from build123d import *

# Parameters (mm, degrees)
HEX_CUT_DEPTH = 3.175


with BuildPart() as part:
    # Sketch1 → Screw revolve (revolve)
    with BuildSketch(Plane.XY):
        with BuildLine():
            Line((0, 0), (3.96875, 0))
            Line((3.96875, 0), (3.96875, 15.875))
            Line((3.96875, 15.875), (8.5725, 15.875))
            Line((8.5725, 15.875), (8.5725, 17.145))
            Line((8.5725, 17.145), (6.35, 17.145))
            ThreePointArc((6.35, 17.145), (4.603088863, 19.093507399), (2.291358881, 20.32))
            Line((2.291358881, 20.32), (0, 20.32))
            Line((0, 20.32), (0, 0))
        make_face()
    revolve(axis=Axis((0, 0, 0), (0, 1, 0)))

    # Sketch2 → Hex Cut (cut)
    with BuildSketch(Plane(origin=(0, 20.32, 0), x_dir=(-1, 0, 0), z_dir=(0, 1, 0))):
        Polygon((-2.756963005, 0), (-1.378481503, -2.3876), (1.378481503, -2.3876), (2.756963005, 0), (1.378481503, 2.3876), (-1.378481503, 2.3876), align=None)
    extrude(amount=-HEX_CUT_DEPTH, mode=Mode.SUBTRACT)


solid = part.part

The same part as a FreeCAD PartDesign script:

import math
import FreeCAD as App
import Part
import Sketcher
Q = App.Units.Quantity


def add_polygon(sketch, points):
    """Adds a closed chain of lines whose ends are joined by coincident constraints."""
    first, n = sketch.GeometryCount, len(points)
    for a, b in zip(points, points[1:] + points[:1]):
        sketch.addGeometry(Part.LineSegment(App.Vector(*a, 0), App.Vector(*b, 0)), False)
    for i in range(n):
        sketch.addConstraint(Sketcher.Constraint("Coincident", first + i, 2, first + (i + 1) % n, 1))

doc = App.newDocument("Part")
body = doc.addObject("PartDesign::Body", "Body")

# Sketch on XY plane
sketch1 = doc.addObject("Sketcher::SketchObject", "Sketch")
body.addObject(sketch1)
sketch1.AttachmentSupport = (doc.XY_Plane, [""])
sketch1.MapMode = "FlatFace"
sketch1.addGeometry([
    Part.LineSegment(App.Vector(0, 0, 0), App.Vector(4, 0, 0)),  # 0
    Part.LineSegment(App.Vector(4, 0, 0), App.Vector(4, 15.9, 0)),  # 1
    Part.LineSegment(App.Vector(4, 15.9, 0), App.Vector(8.6, 15.9, 0)),  # 2
    Part.LineSegment(App.Vector(8.6, 15.9, 0), App.Vector(8.6, 17.1, 0)),  # 3
    Part.LineSegment(App.Vector(8.6, 17.1, 0), App.Vector(6.3, 17.1, 0)),  # 4
    Part.ArcOfCircle(Part.Circle(App.Vector(0, 13.2, 0), App.Vector(0, 0, 1), 7.5), math.radians(32), math.radians(72)),  # 5
    Part.LineSegment(App.Vector(2.3, 20.3, 0), App.Vector(0, 20.3, 0)),  # 6
    Part.LineSegment(App.Vector(0, 20.3, 0), App.Vector(0, 0, 0)),  # 7
], False)
sketch1.addConstraint([
    Sketcher.Constraint("Coincident", 0, 2, 1, 1),
    Sketcher.Constraint("Coincident", 1, 2, 2, 1),
    Sketcher.Constraint("Coincident", 2, 2, 3, 1),
    Sketcher.Constraint("Coincident", 3, 2, 4, 1),
    Sketcher.Constraint("Coincident", 4, 2, 5, 1),
    Sketcher.Constraint("Coincident", 5, 2, 6, 1),
    Sketcher.Constraint("Coincident", 6, 2, 7, 1),
    Sketcher.Constraint("Coincident", 7, 2, 0, 1),
    Sketcher.Constraint("Horizontal", 0),
    Sketcher.Constraint("Vertical", 1),
    Sketcher.Constraint("Horizontal", 2),
    Sketcher.Constraint("Vertical", 3),
    Sketcher.Constraint("Horizontal", 4),
    Sketcher.Constraint("Horizontal", 6),
    Sketcher.Constraint("Vertical", 7),
    Sketcher.Constraint("Coincident", 7, 2, -1, 1),
    Sketcher.Constraint("PointOnObject", 5, 3, -2),
    Sketcher.Constraint("DistanceY", 7, 2, 7, 1, Q("0.8 in")),
    Sketcher.Constraint("DistanceY", 3, 1, 3, 2, Q("0.05 in")),
    Sketcher.Constraint("DistanceX", 0, 1, 0, 2, Q("0.15625 in")),
    Sketcher.Constraint("DistanceY", 1, 1, 1, 2, Q("0.625 in")),
    Sketcher.Constraint("DistanceX", -1, 1, 4, 2, Q("0.25 in")),
    Sketcher.Constraint("DistanceX", 4, 2, 4, 1, Q("0.0875 in")),
    Sketcher.Constraint("Radius", 5, Q("7.470747 mm")),
])
revolution = doc.addObject("PartDesign::Revolution", "Revolution")
body.addObject(revolution)
revolution.Profile = sketch1
revolution.ReferenceAxis = (sketch1, ["V_Axis"])
revolution.Angle = 360

# Sketch on XZ plane
sketch2 = doc.addObject("Sketcher::SketchObject", "Sketch001")
body.addObject(sketch2)
sketch2.AttachmentSupport = (doc.XZ_Plane, [""])
sketch2.MapMode = "FlatFace"
sketch2.AttachmentOffset = App.Placement(App.Vector(0, 0, -0.8 * 25.4), App.Rotation())
add_polygon(sketch2, [(2.8, 0), (1.4, -2.4), (-1.4, -2.4), (-2.8, 0), (-1.4, 2.4), (1.4, 2.4)])  # lines 0-5
sketch2.addConstraint([
    Sketcher.Constraint("Horizontal", 1),
    Sketcher.Constraint("Horizontal", 4),
    Sketcher.Constraint("Symmetric", 0, 2, 3, 2, -1, 1),
    Sketcher.Constraint("Symmetric", 2, 2, 5, 2, -1, 1),
    Sketcher.Constraint("PointOnObject", 2, 2, -1),
    Sketcher.Constraint("Parallel", 2, 5),
    Sketcher.Constraint("Vertical", 1, 2, 3, 2),
    Sketcher.Constraint("Angle", 0, Q("-120 deg")),
    Sketcher.Constraint("DistanceY", 0, 2, -1, 1, Q("0.094 in")),
    Sketcher.Constraint("DistanceX", 1, 2, 1, 1, Q("2.756963 mm")),
])
pocket1 = doc.addObject("PartDesign::Pocket", "Pocket")
body.addObject(pocket1)
pocket1.Profile = sketch2
pocket1.Length = Q("0.125 in")
pocket1.Reversed = True

doc.recompute()
